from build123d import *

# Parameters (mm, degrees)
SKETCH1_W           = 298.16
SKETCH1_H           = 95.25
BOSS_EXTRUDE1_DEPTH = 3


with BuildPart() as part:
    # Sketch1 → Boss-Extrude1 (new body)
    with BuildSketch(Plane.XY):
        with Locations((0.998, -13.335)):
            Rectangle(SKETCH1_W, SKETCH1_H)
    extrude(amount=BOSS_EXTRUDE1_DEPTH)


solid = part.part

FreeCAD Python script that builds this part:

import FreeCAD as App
import Part
import Sketcher
Q = App.Units.Quantity


def add_polygon(sketch, points):
    """Adds a closed chain of lines whose ends are joined by coincident constraints."""
    first, n = sketch.GeometryCount, len(points)
    for a, b in zip(points, points[1:] + points[:1]):
        sketch.addGeometry(Part.LineSegment(App.Vector(*a, 0), App.Vector(*b, 0)), False)
    for i in range(n):
        sketch.addConstraint(Sketcher.Constraint("Coincident", first + i, 2, first + (i + 1) % n, 1))

doc = App.newDocument("Part")
body = doc.addObject("PartDesign::Body", "Body")

sketch1 = doc.addObject("Sketcher::SketchObject", "Sketch")
body.addObject(sketch1)
sketch1.AttachmentSupport = (doc.XY_Plane, [""])
sketch1.MapMode = "FlatFace"
add_polygon(sketch1, [(-148, 34), (-148, -61), (150, -61), (150, 34)])
sketch1.addConstraint(Sketcher.Constraint("Vertical", 0))
sketch1.addConstraint(Sketcher.Constraint("Horizontal", 1))
sketch1.addConstraint(Sketcher.Constraint("Vertical", 2))
sketch1.addConstraint(Sketcher.Constraint("Horizontal", 3))
sketch1.addConstraint(Sketcher.Constraint("DistanceX", 1, 1, 1, 2, Q("298.16 mm")))
sketch1.addConstraint(Sketcher.Constraint("DistanceY", 0, 2, 0, 1, Q("95.25 mm")))
sketch1.addConstraint(Sketcher.Constraint("DistanceY", 0, 2, -1, 1, Q("60.96 mm")))
sketch1.addConstraint(Sketcher.Constraint("DistanceX", 0, 2, -1, 1, Q("148.082 mm")))
pad1 = doc.addObject("PartDesign::Pad", "Pad")
body.addObject(pad1)
pad1.Profile = sketch1
pad1.Length = 3

doc.recompute()
